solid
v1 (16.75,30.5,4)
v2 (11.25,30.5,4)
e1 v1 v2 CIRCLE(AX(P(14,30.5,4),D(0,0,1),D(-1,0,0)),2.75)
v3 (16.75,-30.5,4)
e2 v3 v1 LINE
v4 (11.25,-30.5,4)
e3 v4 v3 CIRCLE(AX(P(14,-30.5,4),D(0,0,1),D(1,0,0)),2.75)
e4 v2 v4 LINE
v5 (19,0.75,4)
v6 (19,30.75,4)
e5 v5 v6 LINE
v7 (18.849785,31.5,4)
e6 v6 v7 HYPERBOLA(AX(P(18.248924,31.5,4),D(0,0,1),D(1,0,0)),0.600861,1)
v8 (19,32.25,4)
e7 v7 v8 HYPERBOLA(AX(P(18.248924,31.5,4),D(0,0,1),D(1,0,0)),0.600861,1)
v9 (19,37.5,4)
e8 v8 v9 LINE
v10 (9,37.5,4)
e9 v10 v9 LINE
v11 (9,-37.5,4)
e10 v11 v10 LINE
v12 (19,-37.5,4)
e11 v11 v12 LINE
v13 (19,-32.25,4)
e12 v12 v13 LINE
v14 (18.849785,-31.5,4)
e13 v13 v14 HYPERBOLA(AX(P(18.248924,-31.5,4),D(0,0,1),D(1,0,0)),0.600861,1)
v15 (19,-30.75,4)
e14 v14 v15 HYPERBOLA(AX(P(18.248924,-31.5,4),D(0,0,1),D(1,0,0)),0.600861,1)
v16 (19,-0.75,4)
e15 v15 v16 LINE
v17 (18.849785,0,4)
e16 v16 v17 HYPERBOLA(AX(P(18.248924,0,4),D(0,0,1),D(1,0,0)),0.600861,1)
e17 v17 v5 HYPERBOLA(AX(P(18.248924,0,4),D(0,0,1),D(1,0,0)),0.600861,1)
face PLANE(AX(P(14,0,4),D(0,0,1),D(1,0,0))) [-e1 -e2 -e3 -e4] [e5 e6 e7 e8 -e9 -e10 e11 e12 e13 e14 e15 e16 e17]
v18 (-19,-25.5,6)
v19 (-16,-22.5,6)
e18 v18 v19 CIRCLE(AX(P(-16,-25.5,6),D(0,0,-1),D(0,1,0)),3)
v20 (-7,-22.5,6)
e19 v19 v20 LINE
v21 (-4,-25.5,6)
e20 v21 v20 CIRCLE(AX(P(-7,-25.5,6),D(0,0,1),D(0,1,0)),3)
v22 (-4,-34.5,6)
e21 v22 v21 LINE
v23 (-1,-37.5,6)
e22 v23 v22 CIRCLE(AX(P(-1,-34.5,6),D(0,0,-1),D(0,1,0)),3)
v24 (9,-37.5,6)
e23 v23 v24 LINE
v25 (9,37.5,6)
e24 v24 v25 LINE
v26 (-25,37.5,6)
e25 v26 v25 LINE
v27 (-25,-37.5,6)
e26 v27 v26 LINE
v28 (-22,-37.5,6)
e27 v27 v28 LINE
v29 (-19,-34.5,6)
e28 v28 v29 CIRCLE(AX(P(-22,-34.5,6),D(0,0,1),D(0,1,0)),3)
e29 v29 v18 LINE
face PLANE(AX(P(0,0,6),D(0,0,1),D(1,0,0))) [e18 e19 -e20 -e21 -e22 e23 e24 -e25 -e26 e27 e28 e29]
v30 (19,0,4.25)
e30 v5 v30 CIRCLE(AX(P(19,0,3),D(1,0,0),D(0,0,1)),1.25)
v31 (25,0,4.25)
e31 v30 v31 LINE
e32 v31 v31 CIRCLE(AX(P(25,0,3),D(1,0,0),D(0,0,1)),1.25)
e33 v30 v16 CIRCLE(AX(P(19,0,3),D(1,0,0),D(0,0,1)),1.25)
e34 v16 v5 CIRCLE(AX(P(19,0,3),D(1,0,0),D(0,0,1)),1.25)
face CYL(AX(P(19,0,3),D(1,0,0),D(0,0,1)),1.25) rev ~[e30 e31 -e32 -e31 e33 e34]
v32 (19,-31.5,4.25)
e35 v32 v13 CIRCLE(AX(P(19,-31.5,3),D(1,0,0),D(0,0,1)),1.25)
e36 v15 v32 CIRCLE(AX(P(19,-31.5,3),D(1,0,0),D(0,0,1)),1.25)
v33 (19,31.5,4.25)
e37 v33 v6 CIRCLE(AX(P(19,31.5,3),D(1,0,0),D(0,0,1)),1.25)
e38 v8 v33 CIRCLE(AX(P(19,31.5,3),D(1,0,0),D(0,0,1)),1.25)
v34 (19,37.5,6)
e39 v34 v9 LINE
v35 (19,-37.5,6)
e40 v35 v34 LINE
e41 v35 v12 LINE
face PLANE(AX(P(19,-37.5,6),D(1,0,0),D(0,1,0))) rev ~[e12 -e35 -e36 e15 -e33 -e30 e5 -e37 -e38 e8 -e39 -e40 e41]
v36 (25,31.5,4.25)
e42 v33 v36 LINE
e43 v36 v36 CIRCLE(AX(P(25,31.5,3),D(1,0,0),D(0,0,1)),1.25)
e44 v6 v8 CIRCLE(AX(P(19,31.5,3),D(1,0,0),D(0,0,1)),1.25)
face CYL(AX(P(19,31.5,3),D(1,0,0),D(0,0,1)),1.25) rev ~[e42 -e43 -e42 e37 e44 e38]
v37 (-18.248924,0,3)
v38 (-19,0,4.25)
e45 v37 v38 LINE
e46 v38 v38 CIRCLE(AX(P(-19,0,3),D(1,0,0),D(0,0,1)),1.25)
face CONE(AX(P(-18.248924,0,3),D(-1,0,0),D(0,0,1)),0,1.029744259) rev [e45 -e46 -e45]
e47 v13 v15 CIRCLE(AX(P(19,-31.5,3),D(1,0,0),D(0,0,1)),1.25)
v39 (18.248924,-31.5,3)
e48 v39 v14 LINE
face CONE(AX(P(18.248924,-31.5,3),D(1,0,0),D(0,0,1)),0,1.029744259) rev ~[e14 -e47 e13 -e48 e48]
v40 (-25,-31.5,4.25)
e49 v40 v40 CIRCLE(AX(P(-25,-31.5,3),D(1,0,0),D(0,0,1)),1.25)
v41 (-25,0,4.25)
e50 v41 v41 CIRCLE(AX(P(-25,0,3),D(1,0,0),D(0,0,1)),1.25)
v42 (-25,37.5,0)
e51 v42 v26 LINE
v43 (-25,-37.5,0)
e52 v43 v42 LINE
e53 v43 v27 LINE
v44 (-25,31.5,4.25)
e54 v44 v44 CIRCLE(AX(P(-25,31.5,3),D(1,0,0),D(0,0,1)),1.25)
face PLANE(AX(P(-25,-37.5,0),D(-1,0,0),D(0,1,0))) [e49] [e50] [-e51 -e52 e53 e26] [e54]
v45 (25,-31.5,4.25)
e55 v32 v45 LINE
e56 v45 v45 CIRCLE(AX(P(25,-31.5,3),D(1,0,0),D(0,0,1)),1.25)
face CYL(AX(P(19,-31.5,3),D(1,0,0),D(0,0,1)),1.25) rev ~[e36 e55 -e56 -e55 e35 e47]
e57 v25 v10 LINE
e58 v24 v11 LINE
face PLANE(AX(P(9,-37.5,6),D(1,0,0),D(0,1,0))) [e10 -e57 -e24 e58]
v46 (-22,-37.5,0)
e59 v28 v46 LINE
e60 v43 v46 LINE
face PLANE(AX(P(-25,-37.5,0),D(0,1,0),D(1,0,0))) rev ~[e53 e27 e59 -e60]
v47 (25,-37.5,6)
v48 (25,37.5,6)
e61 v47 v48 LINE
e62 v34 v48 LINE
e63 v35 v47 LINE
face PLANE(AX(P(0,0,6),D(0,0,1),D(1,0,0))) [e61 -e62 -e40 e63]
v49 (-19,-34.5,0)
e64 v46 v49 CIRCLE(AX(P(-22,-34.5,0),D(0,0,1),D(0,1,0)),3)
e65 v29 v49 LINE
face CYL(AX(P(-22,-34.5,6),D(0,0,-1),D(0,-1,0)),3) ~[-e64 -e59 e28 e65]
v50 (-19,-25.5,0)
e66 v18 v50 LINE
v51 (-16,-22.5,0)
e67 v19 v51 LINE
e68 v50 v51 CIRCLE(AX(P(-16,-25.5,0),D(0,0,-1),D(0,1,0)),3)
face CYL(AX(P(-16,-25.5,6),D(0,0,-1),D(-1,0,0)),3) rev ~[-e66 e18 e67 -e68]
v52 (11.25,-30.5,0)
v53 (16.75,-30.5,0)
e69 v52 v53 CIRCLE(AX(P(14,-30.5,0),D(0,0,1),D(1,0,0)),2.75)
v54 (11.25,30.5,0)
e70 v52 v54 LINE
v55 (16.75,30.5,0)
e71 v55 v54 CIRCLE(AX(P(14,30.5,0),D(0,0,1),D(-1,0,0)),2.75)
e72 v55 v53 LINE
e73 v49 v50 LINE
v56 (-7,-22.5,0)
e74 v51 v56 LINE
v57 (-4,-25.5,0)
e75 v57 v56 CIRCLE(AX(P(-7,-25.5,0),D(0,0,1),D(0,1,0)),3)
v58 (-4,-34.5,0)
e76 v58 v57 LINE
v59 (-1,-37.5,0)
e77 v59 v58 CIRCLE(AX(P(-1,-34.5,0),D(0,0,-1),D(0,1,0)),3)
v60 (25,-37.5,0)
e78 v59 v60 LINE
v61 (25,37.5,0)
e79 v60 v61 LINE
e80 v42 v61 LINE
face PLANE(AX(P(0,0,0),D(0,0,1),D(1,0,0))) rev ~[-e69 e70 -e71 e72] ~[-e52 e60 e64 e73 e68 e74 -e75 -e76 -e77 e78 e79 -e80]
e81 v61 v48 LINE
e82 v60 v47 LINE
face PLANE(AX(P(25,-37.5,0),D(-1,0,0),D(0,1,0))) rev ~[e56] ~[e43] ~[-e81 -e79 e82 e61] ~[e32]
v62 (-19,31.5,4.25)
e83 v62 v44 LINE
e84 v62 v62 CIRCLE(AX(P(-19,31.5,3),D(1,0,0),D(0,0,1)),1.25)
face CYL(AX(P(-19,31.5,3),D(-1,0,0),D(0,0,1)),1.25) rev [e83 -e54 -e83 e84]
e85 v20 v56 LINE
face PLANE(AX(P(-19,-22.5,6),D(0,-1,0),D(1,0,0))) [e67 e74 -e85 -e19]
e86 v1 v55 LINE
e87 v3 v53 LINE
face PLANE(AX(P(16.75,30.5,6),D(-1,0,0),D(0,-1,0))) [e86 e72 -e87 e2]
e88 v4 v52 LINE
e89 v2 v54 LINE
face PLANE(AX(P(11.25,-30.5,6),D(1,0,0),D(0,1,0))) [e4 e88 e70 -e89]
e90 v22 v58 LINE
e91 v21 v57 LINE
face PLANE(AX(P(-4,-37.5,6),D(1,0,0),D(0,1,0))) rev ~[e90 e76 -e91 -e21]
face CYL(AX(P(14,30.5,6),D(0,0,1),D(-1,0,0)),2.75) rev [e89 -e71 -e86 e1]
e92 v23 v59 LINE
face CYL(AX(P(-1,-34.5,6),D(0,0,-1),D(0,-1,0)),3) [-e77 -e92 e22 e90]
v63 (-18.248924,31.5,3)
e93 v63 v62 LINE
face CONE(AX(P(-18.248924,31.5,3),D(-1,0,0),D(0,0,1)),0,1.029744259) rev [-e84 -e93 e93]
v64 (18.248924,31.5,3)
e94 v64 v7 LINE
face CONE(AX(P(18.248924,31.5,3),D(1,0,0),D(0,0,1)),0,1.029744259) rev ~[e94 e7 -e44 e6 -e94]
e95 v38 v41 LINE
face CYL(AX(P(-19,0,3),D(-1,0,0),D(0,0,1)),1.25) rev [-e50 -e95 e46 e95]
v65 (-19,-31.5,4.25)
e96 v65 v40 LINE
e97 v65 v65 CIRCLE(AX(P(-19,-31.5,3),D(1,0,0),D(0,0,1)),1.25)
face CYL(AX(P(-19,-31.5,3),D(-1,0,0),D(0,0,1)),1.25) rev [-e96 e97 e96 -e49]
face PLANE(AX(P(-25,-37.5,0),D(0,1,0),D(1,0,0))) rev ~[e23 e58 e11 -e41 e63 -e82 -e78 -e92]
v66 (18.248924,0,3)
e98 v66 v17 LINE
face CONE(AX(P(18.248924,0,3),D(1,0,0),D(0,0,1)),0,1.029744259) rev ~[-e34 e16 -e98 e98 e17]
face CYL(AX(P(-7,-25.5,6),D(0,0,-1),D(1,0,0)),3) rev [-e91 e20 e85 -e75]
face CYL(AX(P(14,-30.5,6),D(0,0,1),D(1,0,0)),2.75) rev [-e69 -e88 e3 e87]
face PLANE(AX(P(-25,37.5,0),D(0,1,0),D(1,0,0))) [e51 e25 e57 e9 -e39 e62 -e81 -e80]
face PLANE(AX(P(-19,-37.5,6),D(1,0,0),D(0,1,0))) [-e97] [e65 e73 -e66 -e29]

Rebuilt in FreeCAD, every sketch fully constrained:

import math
import FreeCAD as App
import Part
import Sketcher
Q = App.Units.Quantity


def edges_at(feature, points):
    """Names of the edges that pass closest to the given points."""
    edges = feature.Shape.Edges
    near = lambda p: min(range(len(edges)), key=lambda i: edges[i].distToShape(Part.Vertex(*p))[0])
    return sorted({f"Edge{near(p) + 1}" for p in points})

doc = App.newDocument("Part")
body = doc.addObject("PartDesign::Body", "Body")

# Sketch on XY plane
sketch1 = doc.addObject("Sketcher::SketchObject", "Sketch")
body.addObject(sketch1)
sketch1.AttachmentSupport = (doc.XY_Plane, [""])
sketch1.MapMode = "FlatFace"
sketch1.addGeometry(Part.LineSegment(App.Vector(-25, 38, 0), App.Vector(-25, -38, 0)), False)
sketch1.addGeometry(Part.LineSegment(App.Vector(-25, -38, 0), App.Vector(25, -38, 0)), False)
sketch1.addGeometry(Part.LineSegment(App.Vector(25, -38, 0), App.Vector(25, 38, 0)), False)
sketch1.addGeometry(Part.LineSegment(App.Vector(25, 38, 0), App.Vector(-25, 38, 0)), False)
sketch1.addConstraint(Sketcher.Constraint("Coincident", 0, 2, 1, 1))
sketch1.addConstraint(Sketcher.Constraint("Coincident", 1, 2, 2, 1))
sketch1.addConstraint(Sketcher.Constraint("Coincident", 2, 2, 3, 1))
sketch1.addConstraint(Sketcher.Constraint("Coincident", 3, 2, 0, 1))
sketch1.addConstraint(Sketcher.Constraint("Vertical", 0))
sketch1.addConstraint(Sketcher.Constraint("Horizontal", 1))
sketch1.addConstraint(Sketcher.Constraint("Vertical", 2))
sketch1.addConstraint(Sketcher.Constraint("Horizontal", 3))
sketch1.addConstraint(Sketcher.Constraint("Symmetric", 0, 2, 2, 2, -1, 1))
sketch1.addConstraint(Sketcher.Constraint("DistanceX", 1, 1, 1, 2, 50.0))
sketch1.addConstraint(Sketcher.Constraint("DistanceY", 0, 2, 0, 1, 75.0))
pad1 = doc.addObject("PartDesign::Pad", "Pad")
body.addObject(pad1)
pad1.Profile = sketch1
pad1.Length = 6

# Sketch on XY plane
sketch2 = doc.addObject("Sketcher::SketchObject", "Sketch001")
body.addObject(sketch2)
sketch2.AttachmentSupport = (doc.XY_Plane, [""])
sketch2.MapMode = "FlatFace"
sketch2.AttachmentOffset = App.Placement(App.Vector(0, 0, 6), App.Rotation())
sketch2.addGeometry(Part.LineSegment(App.Vector(16.8, -30.5, 0), App.Vector(16.8, 30.5, 0)), False)
sketch2.addGeometry(Part.ArcOfCircle(Part.Circle(App.Vector(14, 30.5, 0), App.Vector(0, 0, 1), 2.8), math.radians(0), math.radians(180)), False)
sketch2.addGeometry(Part.LineSegment(App.Vector(11.2, 30.5, 0), App.Vector(11.2, -30.5, 0)), False)
sketch2.addGeometry(Part.ArcOfCircle(Part.Circle(App.Vector(14, -30.5, 0), App.Vector(0, 0, 1), 2.8), math.radians(180), math.radians(360)), False)
sketch2.addConstraint(Sketcher.Constraint("Tangent", 0, 2, 1, 1))
sketch2.addConstraint(Sketcher.Constraint("Tangent", 1, 2, 2, 1))
sketch2.addConstraint(Sketcher.Constraint("Tangent", 2, 2, 3, 1))
sketch2.addConstraint(Sketcher.Constraint("Tangent", 3, 2, 0, 1))
sketch2.addConstraint(Sketcher.Constraint("Vertical", 0))
sketch2.addConstraint(Sketcher.Constraint("Vertical", 2))
sketch2.addConstraint(Sketcher.Constraint("DistanceY", 0, 1, 0, 2, 61.0))
sketch2.addConstraint(Sketcher.Constraint("Radius", 1, 2.75))
sketch2.addConstraint(Sketcher.Constraint("DistanceX", -1, 1, 1, 3, 14.0))
sketch2.addConstraint(Sketcher.Constraint("DistanceY", -1, 1, 1, 3, 30.5))
pocket1 = doc.addObject("PartDesign::Pocket", "Pocket")
body.addObject(pocket1)
pocket1.Profile = sketch2
pocket1.Type = "ThroughAll"

# Sketch on XZ plane
sketch3 = doc.addObject("Sketcher::SketchObject", "Sketch002")
body.addObject(sketch3)
sketch3.AttachmentSupport = (doc.XZ_Plane, [""])
sketch3.MapMode = "FlatFace"
sketch3.AttachmentOffset = App.Placement(App.Vector(0, 0, -31.5), App.Rotation())
sketch3.addGeometry(Part.LineSegment(App.Vector(-18.2, 3, 0), App.Vector(-25, 3, 0)), False)
sketch3.addGeometry(Part.LineSegment(App.Vector(-25, 3, 0), App.Vector(-25, 4.2, 0)), False)
sketch3.addGeometry(Part.LineSegment(App.Vector(-25, 4.2, 0), App.Vector(-19, 4.2, 0)), False)
sketch3.addGeometry(Part.LineSegment(App.Vector(-19, 4.2, 0), App.Vector(-18.2, 3, 0)), False)
sketch3.addGeometry(Part.LineSegment(App.Vector(-25, 3, 0), App.Vector(-18.2, 3, 0)), True)  # axis
sketch3.addConstraint(Sketcher.Constraint("Coincident", 0, 2, 1, 1))
sketch3.addConstraint(Sketcher.Constraint("Coincident", 1, 2, 2, 1))
sketch3.addConstraint(Sketcher.Constraint("Coincident", 2, 2, 3, 1))
sketch3.addConstraint(Sketcher.Constraint("Coincident", 3, 2, 0, 1))
sketch3.addConstraint(Sketcher.Constraint("Horizontal", 0))
sketch3.addConstraint(Sketcher.Constraint("Vertical", 1))
sketch3.addConstraint(Sketcher.Constraint("Horizontal", 2))
sketch3.addConstraint(Sketcher.Constraint("Horizontal", 4))
sketch3.addConstraint(Sketcher.Constraint("Coincident", 4, 1, 0, 2))
sketch3.addConstraint(Sketcher.Constraint("Equal", 0, 4))
sketch3.addConstraint(Sketcher.Constraint("DistanceX", 2, 1, 2, 2, 6.0))
sketch3.addConstraint(Sketcher.Constraint("Angle", 3, Q("-59 deg")))
sketch3.addConstraint(Sketcher.Constraint("DistanceX", 0, 2, -1, 1, 25.0))
sketch3.addConstraint(Sketcher.Constraint("DistanceY", -1, 1, 0, 2, 3.0))
sketch3.addConstraint(Sketcher.Constraint("DistanceY", 1, 1, 1, 2, 1.25))
groove = doc.addObject("PartDesign::Groove", "Groove")
body.addObject(groove)
groove.Profile = sketch3
groove.ReferenceAxis = (sketch3, ["Axis0"])
groove.Angle = 360
doc.recompute()

linearpattern = doc.addObject("PartDesign::LinearPattern", "LinearPattern")
body.addObject(linearpattern)
linearpattern.Originals = [groove]
linearpattern.Direction = (doc.Y_Axis, [""])
linearpattern.Mode = "offset"
linearpattern.Offset = 31.5
linearpattern.Occurrences = 2
linearpattern.Reversed = True
body.Tip = linearpattern
doc.recompute()

linearpattern2 = doc.addObject("PartDesign::LinearPattern", "LinearPattern001")
body.addObject(linearpattern2)
linearpattern2.Originals = [groove]
linearpattern2.Direction = (doc.Y_Axis, [""])
linearpattern2.Mode = "offset"
linearpattern2.Offset = 63
linearpattern2.Occurrences = 2
linearpattern2.Reversed = True
body.Tip = linearpattern2
doc.recompute()

mirrored = doc.addObject("PartDesign::Mirrored", "Mirrored")
body.addObject(mirrored)
mirrored.Originals = [groove]
mirrored.MirrorPlane = (doc.YZ_Plane, [""])
body.Tip = mirrored

# Sketch on XZ plane
sketch4 = doc.addObject("Sketcher::SketchObject", "Sketch003")
body.addObject(sketch4)
sketch4.AttachmentSupport = (doc.XZ_Plane, [""])
sketch4.MapMode = "FlatFace"
sketch4.addGeometry(Part.LineSegment(App.Vector(25, 3, 0), App.Vector(18.2, 3, 0)), False)
sketch4.addGeometry(Part.LineSegment(App.Vector(18.2, 3, 0), App.Vector(19, 4.2, 0)), False)
sketch4.addGeometry(Part.LineSegment(App.Vector(19, 4.2, 0), App.Vector(25, 4.2, 0)), False)
sketch4.addGeometry(Part.LineSegment(App.Vector(25, 4.2, 0), App.Vector(25, 3, 0)), False)
sketch4.addGeometry(Part.LineSegment(App.Vector(18.2, 3, 0), App.Vector(25, 3, 0)), True)  # axis
sketch4.addConstraint(Sketcher.Constraint("Coincident", 0, 2, 1, 1))
sketch4.addConstraint(Sketcher.Constraint("Coincident", 1, 2, 2, 1))
sketch4.addConstraint(Sketcher.Constraint("Coincident", 2, 2, 3, 1))
sketch4.addConstraint(Sketcher.Constraint("Coincident", 3, 2, 0, 1))
sketch4.addConstraint(Sketcher.Constraint("Horizontal", 0))
sketch4.addConstraint(Sketcher.Constraint("Horizontal", 2))
sketch4.addConstraint(Sketcher.Constraint("Vertical", 3))
sketch4.addConstraint(Sketcher.Constraint("Horizontal", 4))
sketch4.addConstraint(Sketcher.Constraint("Coincident", 4, 1, 0, 2))
sketch4.addConstraint(Sketcher.Constraint("Vertical", 2, 2, 4, 2))
sketch4.addConstraint(Sketcher.Constraint("DistanceX", 2, 1, 2, 2, 6.0))
sketch4.addConstraint(Sketcher.Constraint("Angle", 1, Q("59 deg")))
sketch4.addConstraint(Sketcher.Constraint("DistanceY", -1, 1, 0, 2, 3.0))
sketch4.addConstraint(Sketcher.Constraint("DistanceX", -1, 1, 1, 2, 19.0))
sketch4.addConstraint(Sketcher.Constraint("DistanceY", 3, 2, 3, 1, 1.25))
groove2 = doc.addObject("PartDesign::Groove", "Groove001")
body.addObject(groove2)
groove2.Profile = sketch4
groove2.ReferenceAxis = (sketch4, ["Axis0"])
groove2.Angle = 360

# Sketch on XZ plane
sketch5 = doc.addObject("Sketcher::SketchObject", "Sketch004")
body.addObject(sketch5)
sketch5.AttachmentSupport = (doc.XZ_Plane, [""])
sketch5.MapMode = "FlatFace"
sketch5.AttachmentOffset = App.Placement(App.Vector(0, 0, 31.5), App.Rotation())
sketch5.addGeometry(Part.LineSegment(App.Vector(25, 3, 0), App.Vector(18.2, 3, 0)), False)
sketch5.addGeometry(Part.LineSegment(App.Vector(18.2, 3, 0), App.Vector(19, 4.2, 0)), False)
sketch5.addGeometry(Part.LineSegment(App.Vector(19, 4.2, 0), App.Vector(25, 4.2, 0)), False)
sketch5.addGeometry(Part.LineSegment(App.Vector(25, 4.2, 0), App.Vector(25, 3, 0)), False)
sketch5.addGeometry(Part.LineSegment(App.Vector(18.2, 3, 0), App.Vector(25, 3, 0)), True)  # axis
sketch5.addConstraint(Sketcher.Constraint("Coincident", 0, 2, 1, 1))
sketch5.addConstraint(Sketcher.Constraint("Coincident", 1, 2, 2, 1))
sketch5.addConstraint(Sketcher.Constraint("Coincident", 2, 2, 3, 1))
sketch5.addConstraint(Sketcher.Constraint("Coincident", 3, 2, 0, 1))
sketch5.addConstraint(Sketcher.Constraint("Horizontal", 0))
sketch5.addConstraint(Sketcher.Constraint("Horizontal", 2))
sketch5.addConstraint(Sketcher.Constraint("Vertical", 3))
sketch5.addConstraint(Sketcher.Constraint("Horizontal", 4))
sketch5.addConstraint(Sketcher.Constraint("Coincident", 4, 1, 0, 2))
sketch5.addConstraint(Sketcher.Constraint("Vertical", 2, 2, 4, 2))
sketch5.addConstraint(Sketcher.Constraint("DistanceX", 2, 1, 2, 2, 6.0))
sketch5.addConstraint(Sketcher.Constraint("Angle", 1, Q("59 deg")))
sketch5.addConstraint(Sketcher.Constraint("DistanceY", -1, 1, 0, 2, 3.0))
sketch5.addConstraint(Sketcher.Constraint("DistanceX", -1, 1, 1, 2, 19.0))
sketch5.addConstraint(Sketcher.Constraint("DistanceY", 3, 2, 3, 1, 1.25))
groove3 = doc.addObject("PartDesign::Groove", "Groove002")
body.addObject(groove3)
groove3.Profile = sketch5
groove3.ReferenceAxis = (sketch5, ["Axis0"])
groove3.Angle = 360

# Sketch on XY plane
sketch6 = doc.addObject("Sketcher::SketchObject", "Sketch005")
body.addObject(sketch6)
sketch6.AttachmentSupport = (doc.XY_Plane, [""])
sketch6.MapMode = "FlatFace"
sketch6.AttachmentOffset = App.Placement(App.Vector(0, 0, 6), App.Rotation())
sketch6.addGeometry(Part.LineSegment(App.Vector(9, 38, 0), App.Vector(9, -38, 0)), False)
sketch6.addGeometry(Part.LineSegment(App.Vector(9, -38, 0), App.Vector(19, -38, 0)), False)
sketch6.addGeometry(Part.LineSegment(App.Vector(19, -38, 0), App.Vector(19, 38, 0)), False)
sketch6.addGeometry(Part.LineSegment(App.Vector(19, 38, 0), App.Vector(9, 38, 0)), False)
sketch6.addConstraint(Sketcher.Constraint("Coincident", 0, 2, 1, 1))
sketch6.addConstraint(Sketcher.Constraint("Coincident", 1, 2, 2, 1))
sketch6.addConstraint(Sketcher.Constraint("Coincident", 2, 2, 3, 1))
sketch6.addConstraint(Sketcher.Constraint("Coincident", 3, 2, 0, 1))
sketch6.addConstraint(Sketcher.Constraint("Vertical", 0))
sketch6.addConstraint(Sketcher.Constraint("Horizontal", 1))
sketch6.addConstraint(Sketcher.Constraint("Vertical", 2))
sketch6.addConstraint(Sketcher.Constraint("Horizontal", 3))
sketch6.addConstraint(Sketcher.Constraint("DistanceX", 1, 1, 1, 2, 10.0))
sketch6.addConstraint(Sketcher.Constraint("DistanceY", 0, 2, 0, 1, 75.0))
sketch6.addConstraint(Sketcher.Constraint("DistanceX", -1, 1, 0, 2, 9.0))
sketch6.addConstraint(Sketcher.Constraint("DistanceY", 0, 2, -1, 1, 37.5))
pocket2 = doc.addObject("PartDesign::Pocket", "Pocket001")
body.addObject(pocket2)
pocket2.Profile = sketch6
pocket2.Length = 2

# Sketch on XY plane
sketch7 = doc.addObject("Sketcher::SketchObject", "Sketch006")
body.addObject(sketch7)
sketch7.AttachmentSupport = (doc.XY_Plane, [""])
sketch7.MapMode = "FlatFace"
sketch7.AttachmentOffset = App.Placement(App.Vector(0, 0, 6), App.Rotation())
sketch7.addGeometry(Part.LineSegment(App.Vector(-19, -22, 0), App.Vector(-19, -38, 0)), False)
sketch7.addGeometry(Part.LineSegment(App.Vector(-19, -38, 0), App.Vector(-4, -38, 0)), False)
sketch7.addGeometry(Part.LineSegment(App.Vector(-4, -38, 0), App.Vector(-4, -22, 0)), False)
sketch7.addGeometry(Part.LineSegment(App.Vector(-4, -22, 0), App.Vector(-19, -22, 0)), False)
sketch7.addConstraint(Sketcher.Constraint("Coincident", 0, 2, 1, 1))
sketch7.addConstraint(Sketcher.Constraint("Coincident", 1, 2, 2, 1))
sketch7.addConstraint(Sketcher.Constraint("Coincident", 2, 2, 3, 1))
sketch7.addConstraint(Sketcher.Constraint("Coincident", 3, 2, 0, 1))
sketch7.addConstraint(Sketcher.Constraint("Vertical", 0))
sketch7.addConstraint(Sketcher.Constraint("Horizontal", 1))
sketch7.addConstraint(Sketcher.Constraint("Vertical", 2))
sketch7.addConstraint(Sketcher.Constraint("Horizontal", 3))
sketch7.addConstraint(Sketcher.Constraint("Equal", 3, 0))
sketch7.addConstraint(Sketcher.Constraint("DistanceX", 1, 1, 1, 2, 15.0))
sketch7.addConstraint(Sketcher.Constraint("DistanceX", 0, 2, -1, 1, 19.0))
sketch7.addConstraint(Sketcher.Constraint("DistanceY", 0, 2, -1, 1, 37.5))
pocket3 = doc.addObject("PartDesign::Pocket", "Pocket002")
body.addObject(pocket3)
pocket3.Profile = sketch7
pocket3.Type = "ThroughAll"
doc.recompute()

fillet = doc.addObject("PartDesign::Fillet", "Fillet")
body.addObject(fillet)
fillet.Base = (pocket3, edges_at(pocket3, [
    (-19, -37.5, 3),
    (-4, -22.5, 3),
    (-4, -37.5, 3),
    (-19, -22.5, 3),
]))
fillet.Radius = 3

doc.recompute()
